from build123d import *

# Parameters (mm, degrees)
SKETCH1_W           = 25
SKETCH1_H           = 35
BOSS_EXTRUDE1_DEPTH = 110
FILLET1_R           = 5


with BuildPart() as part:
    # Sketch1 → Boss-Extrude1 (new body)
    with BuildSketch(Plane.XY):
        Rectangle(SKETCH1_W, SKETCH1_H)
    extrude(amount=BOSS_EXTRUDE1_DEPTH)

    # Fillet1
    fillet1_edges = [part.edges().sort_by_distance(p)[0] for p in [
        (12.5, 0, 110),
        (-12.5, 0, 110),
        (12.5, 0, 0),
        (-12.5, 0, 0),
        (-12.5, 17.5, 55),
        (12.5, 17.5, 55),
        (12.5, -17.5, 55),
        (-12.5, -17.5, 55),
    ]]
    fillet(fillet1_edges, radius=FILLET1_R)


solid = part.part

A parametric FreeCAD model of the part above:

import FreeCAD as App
import Part
import Sketcher
Q = App.Units.Quantity


def edges_at(feature, points):
    """Names of the edges that pass closest to the given points."""
    edges = feature.Shape.Edges
    near = lambda p: min(range(len(edges)), key=lambda i: edges[i].distToShape(Part.Vertex(*p))[0])
    return sorted({f"Edge{near(p) + 1}" for p in points})

doc = App.newDocument("Part")
params = doc.addObject("Spreadsheet::Sheet", "Params")
for row, (alias, value) in enumerate([
    ("sketch1_width", "25 mm"),
    ("sketch1_height", "35 mm"),
    ("pad1_length", "110 mm"),
    ("fillet_radius", "5 mm"),
], start=1):
    params.set(f"A{row}", alias)
    params.set(f"B{row}", "=" + value)
    params.setAlias(f"B{row}", alias)

body = doc.addObject("PartDesign::Body", "Body")

sketch1 = body.newObject("Sketcher::SketchObject", "Sketch")
sketch1.AttachmentSupport = (doc.getObject("XY_Plane"), [""])
sketch1.MapMode = "FlatFace"
sketch1.addGeometry([
    Part.LineSegment(App.Vector(-12, 18, 0), App.Vector(-12, -18, 0)),
    Part.LineSegment(App.Vector(-12, -18, 0), App.Vector(12, -18, 0)),
    Part.LineSegment(App.Vector(12, -18, 0), App.Vector(12, 18, 0)),
    Part.LineSegment(App.Vector(12, 18, 0), App.Vector(-12, 18, 0)),
], False)
sketch1.addConstraint([
    Sketcher.Constraint("Coincident", 0, 2, 1, 1),
    Sketcher.Constraint("Coincident", 1, 2, 2, 1),
    Sketcher.Constraint("Coincident", 2, 2, 3, 1),
    Sketcher.Constraint("Coincident", 3, 2, 0, 1),
    Sketcher.Constraint("Vertical", 0),
    Sketcher.Constraint("Horizontal", 1),
    Sketcher.Constraint("Vertical", 2),
    Sketcher.Constraint("Horizontal", 3),
    Sketcher.Constraint("Symmetric", 0, 2, 2, 2, -1, 1),
    Sketcher.Constraint("DistanceX", 1, 1, 1, 2, Q("25 mm")),
    Sketcher.Constraint("DistanceY", 0, 2, 0, 1, Q("35 mm")),
])
sketch1.setExpression("Constraints[9]", "Params.sketch1_width")
sketch1.setExpression("Constraints[10]", "Params.sketch1_height")
pad1 = body.newObject("PartDesign::Pad", "Pad")
pad1.Profile = sketch1
pad1.setExpression("Length", "Params.pad1_length")
doc.recompute()

fillet = body.newObject("PartDesign::Fillet", "Fillet")
fillet.Base = (pad1, edges_at(pad1, [
    (12.5, 0, 110),
    (-12.5, 0, 110),
    (12.5, 0, 0),
    (-12.5, 0, 0),
    (-12.5, 17.5, 55),
    (12.5, 17.5, 55),
    (12.5, -17.5, 55),
    (-12.5, -17.5, 55),
]))
fillet.setExpression("Radius", "Params.fillet_radius")

doc.recompute()
